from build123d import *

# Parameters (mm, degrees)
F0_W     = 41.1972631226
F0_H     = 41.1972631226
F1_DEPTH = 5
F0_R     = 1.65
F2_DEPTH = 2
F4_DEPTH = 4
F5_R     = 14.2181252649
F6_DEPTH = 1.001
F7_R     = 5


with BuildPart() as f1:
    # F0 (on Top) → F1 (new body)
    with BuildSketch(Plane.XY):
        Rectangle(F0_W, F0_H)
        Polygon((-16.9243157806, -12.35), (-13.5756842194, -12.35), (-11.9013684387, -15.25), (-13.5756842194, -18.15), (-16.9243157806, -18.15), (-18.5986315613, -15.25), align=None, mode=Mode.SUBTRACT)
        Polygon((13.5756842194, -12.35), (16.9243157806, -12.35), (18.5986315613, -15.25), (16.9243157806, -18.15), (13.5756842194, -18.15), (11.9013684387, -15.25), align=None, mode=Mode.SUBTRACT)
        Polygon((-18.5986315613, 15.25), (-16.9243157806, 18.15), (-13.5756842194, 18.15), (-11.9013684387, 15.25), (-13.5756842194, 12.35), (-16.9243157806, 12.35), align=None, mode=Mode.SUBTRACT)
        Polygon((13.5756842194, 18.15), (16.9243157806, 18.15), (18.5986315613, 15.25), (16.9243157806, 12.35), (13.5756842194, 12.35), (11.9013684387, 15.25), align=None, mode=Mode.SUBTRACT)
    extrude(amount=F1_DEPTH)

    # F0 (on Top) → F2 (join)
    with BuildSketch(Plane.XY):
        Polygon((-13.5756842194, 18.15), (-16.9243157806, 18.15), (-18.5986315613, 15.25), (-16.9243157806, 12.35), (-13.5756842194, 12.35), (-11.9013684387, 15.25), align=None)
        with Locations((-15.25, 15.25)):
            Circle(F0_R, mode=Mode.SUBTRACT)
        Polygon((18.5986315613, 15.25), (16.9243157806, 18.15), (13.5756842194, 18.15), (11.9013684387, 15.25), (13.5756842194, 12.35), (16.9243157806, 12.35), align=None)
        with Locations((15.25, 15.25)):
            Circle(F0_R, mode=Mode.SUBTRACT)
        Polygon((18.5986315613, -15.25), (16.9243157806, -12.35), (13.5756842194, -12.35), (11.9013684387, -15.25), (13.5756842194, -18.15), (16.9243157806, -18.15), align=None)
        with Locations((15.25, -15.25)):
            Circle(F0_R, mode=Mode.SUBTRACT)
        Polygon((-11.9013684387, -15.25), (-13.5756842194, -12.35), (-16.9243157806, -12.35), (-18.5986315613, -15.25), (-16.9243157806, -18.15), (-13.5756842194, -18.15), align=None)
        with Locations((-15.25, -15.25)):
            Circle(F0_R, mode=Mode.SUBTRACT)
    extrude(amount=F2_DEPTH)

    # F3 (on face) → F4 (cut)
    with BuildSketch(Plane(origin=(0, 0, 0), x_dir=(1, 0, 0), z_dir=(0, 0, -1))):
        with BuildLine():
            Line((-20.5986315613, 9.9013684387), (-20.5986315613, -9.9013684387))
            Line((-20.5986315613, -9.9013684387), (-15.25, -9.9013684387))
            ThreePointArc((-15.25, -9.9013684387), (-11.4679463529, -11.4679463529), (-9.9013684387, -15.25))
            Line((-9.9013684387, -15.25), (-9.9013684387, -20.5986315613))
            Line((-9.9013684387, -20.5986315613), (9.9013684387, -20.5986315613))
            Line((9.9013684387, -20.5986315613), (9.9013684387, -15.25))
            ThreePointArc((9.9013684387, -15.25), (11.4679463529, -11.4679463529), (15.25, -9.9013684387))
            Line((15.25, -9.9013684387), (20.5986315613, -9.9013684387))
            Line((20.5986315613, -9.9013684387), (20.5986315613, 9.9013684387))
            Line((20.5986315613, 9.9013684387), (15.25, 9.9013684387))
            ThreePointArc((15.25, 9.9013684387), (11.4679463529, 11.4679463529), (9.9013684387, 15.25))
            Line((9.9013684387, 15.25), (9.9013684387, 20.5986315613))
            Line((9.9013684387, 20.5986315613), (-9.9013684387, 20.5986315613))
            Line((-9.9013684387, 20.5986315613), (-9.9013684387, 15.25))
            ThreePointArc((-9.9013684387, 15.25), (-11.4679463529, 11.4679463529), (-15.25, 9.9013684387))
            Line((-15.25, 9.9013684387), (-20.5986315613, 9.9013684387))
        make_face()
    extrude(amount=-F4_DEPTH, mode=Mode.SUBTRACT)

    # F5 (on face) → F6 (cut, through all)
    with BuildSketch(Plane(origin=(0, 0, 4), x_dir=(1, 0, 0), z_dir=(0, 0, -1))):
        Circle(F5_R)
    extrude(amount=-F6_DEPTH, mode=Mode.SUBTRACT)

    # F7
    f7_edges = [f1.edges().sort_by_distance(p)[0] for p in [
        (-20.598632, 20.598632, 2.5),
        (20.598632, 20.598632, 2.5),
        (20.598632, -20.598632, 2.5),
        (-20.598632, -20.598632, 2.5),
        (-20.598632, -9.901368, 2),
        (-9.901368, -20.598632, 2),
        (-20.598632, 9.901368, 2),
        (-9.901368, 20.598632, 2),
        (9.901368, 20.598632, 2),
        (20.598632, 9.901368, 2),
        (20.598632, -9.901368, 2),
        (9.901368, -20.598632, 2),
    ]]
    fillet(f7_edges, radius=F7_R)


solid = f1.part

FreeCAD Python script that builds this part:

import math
import FreeCAD as App
import Part
import Sketcher

V = App.Vector
Q = App.Units.Quantity


def edges_at(feature, points):
    """Names of the edges that pass closest to the given points."""
    edges = feature.Shape.Edges
    near = lambda p: min(range(len(edges)), key=lambda i: edges[i].distToShape(Part.Vertex(*p))[0])
    return sorted({f"Edge{near(p) + 1}" for p in points})

doc = App.newDocument("Part")
params = doc.addObject("Spreadsheet::Sheet", "Params")
for row, (alias, value) in enumerate([
    ("pad1_length", "5 mm"),
    ("sketch2_diameter", "3.3 mm"),
    ("pad2_length", "2 mm"),
    ("pocket1_length", "4 mm"),
    ("fillet_radius", "5 mm"),
], start=1):
    params.set(f"A{row}", alias)
    params.set(f"B{row}", "=" + value)
    params.setAlias(f"B{row}", alias)

body = doc.addObject("PartDesign::Body", "Body")

# Sketch on XY plane
sketch1 = body.newObject("Sketcher::SketchObject", "Sketch")
sketch1.AttachmentSupport = (doc.getObject("XY_Plane"), [""])
sketch1.MapMode = "FlatFace"
sketch1.addGeometry(Part.LineSegment(V(-20.6, 20.6, 0), V(-20.6, -20.6, 0)), False)
sketch1.addGeometry(Part.LineSegment(V(-20.6, -20.6, 0), V(20.6, -20.6, 0)), False)
sketch1.addGeometry(Part.LineSegment(V(20.6, -20.6, 0), V(20.6, 20.6, 0)), False)
sketch1.addGeometry(Part.LineSegment(V(20.6, 20.6, 0), V(-20.6, 20.6, 0)), False)
sketch1.addGeometry(Part.LineSegment(V(-18.6, -15.2, 0), V(-16.9, -12.3, 0)), False)
sketch1.addGeometry(Part.LineSegment(V(-16.9, -12.3, 0), V(-13.6, -12.3, 0)), False)
sketch1.addGeometry(Part.LineSegment(V(-13.6, -12.3, 0), V(-11.9, -15.2, 0)), False)
sketch1.addGeometry(Part.LineSegment(V(-11.9, -15.2, 0), V(-13.6, -18.1, 0)), False)
sketch1.addGeometry(Part.LineSegment(V(-13.6, -18.1, 0), V(-16.9, -18.1, 0)), False)
sketch1.addGeometry(Part.LineSegment(V(-16.9, -18.1, 0), V(-18.6, -15.2, 0)), False)
sketch1.addGeometry(Part.LineSegment(V(11.9, -15.2, 0), V(13.6, -12.3, 0)), False)
sketch1.addGeometry(Part.LineSegment(V(13.6, -12.3, 0), V(16.9, -12.3, 0)), False)
sketch1.addGeometry(Part.LineSegment(V(16.9, -12.3, 0), V(18.6, -15.2, 0)), False)
sketch1.addGeometry(Part.LineSegment(V(18.6, -15.2, 0), V(16.9, -18.1, 0)), False)
sketch1.addGeometry(Part.LineSegment(V(16.9, -18.1, 0), V(13.6, -18.1, 0)), False)
sketch1.addGeometry(Part.LineSegment(V(13.6, -18.1, 0), V(11.9, -15.2, 0)), False)
sketch1.addGeometry(Part.LineSegment(V(-16.9, 12.3, 0), V(-18.6, 15.2, 0)), False)
sketch1.addGeometry(Part.LineSegment(V(-18.6, 15.2, 0), V(-16.9, 18.1, 0)), False)
sketch1.addGeometry(Part.LineSegment(V(-16.9, 18.1, 0), V(-13.6, 18.1, 0)), False)
sketch1.addGeometry(Part.LineSegment(V(-13.6, 18.1, 0), V(-11.9, 15.2, 0)), False)
sketch1.addGeometry(Part.LineSegment(V(-11.9, 15.2, 0), V(-13.6, 12.3, 0)), False)
sketch1.addGeometry(Part.LineSegment(V(-13.6, 12.3, 0), V(-16.9, 12.3, 0)), False)
sketch1.addGeometry(Part.LineSegment(V(11.9, 15.2, 0), V(13.6, 18.1, 0)), False)
sketch1.addGeometry(Part.LineSegment(V(13.6, 18.1, 0), V(16.9, 18.1, 0)), False)
sketch1.addGeometry(Part.LineSegment(V(16.9, 18.1, 0), V(18.6, 15.2, 0)), False)
sketch1.addGeometry(Part.LineSegment(V(18.6, 15.2, 0), V(16.9, 12.3, 0)), False)
sketch1.addGeometry(Part.LineSegment(V(16.9, 12.3, 0), V(13.6, 12.3, 0)), False)
sketch1.addGeometry(Part.LineSegment(V(13.6, 12.3, 0), V(11.9, 15.2, 0)), False)
sketch1.addConstraint(Sketcher.Constraint("Coincident", 0, 2, 1, 1))
sketch1.addConstraint(Sketcher.Constraint("Coincident", 1, 2, 2, 1))
sketch1.addConstraint(Sketcher.Constraint("Coincident", 2, 2, 3, 1))
sketch1.addConstraint(Sketcher.Constraint("Coincident", 3, 2, 0, 1))
sketch1.addConstraint(Sketcher.Constraint("Coincident", 4, 2, 5, 1))
sketch1.addConstraint(Sketcher.Constraint("Coincident", 5, 2, 6, 1))
sketch1.addConstraint(Sketcher.Constraint("Coincident", 6, 2, 7, 1))
sketch1.addConstraint(Sketcher.Constraint("Coincident", 7, 2, 8, 1))
sketch1.addConstraint(Sketcher.Constraint("Coincident", 8, 2, 9, 1))
sketch1.addConstraint(Sketcher.Constraint("Coincident", 9, 2, 4, 1))
sketch1.addConstraint(Sketcher.Constraint("Coincident", 10, 2, 11, 1))
sketch1.addConstraint(Sketcher.Constraint("Coincident", 11, 2, 12, 1))
sketch1.addConstraint(Sketcher.Constraint("Coincident", 12, 2, 13, 1))
sketch1.addConstraint(Sketcher.Constraint("Coincident", 13, 2, 14, 1))
sketch1.addConstraint(Sketcher.Constraint("Coincident", 14, 2, 15, 1))
sketch1.addConstraint(Sketcher.Constraint("Coincident", 15, 2, 10, 1))
sketch1.addConstraint(Sketcher.Constraint("Coincident", 16, 2, 17, 1))
sketch1.addConstraint(Sketcher.Constraint("Coincident", 17, 2, 18, 1))
sketch1.addConstraint(Sketcher.Constraint("Coincident", 18, 2, 19, 1))
sketch1.addConstraint(Sketcher.Constraint("Coincident", 19, 2, 20, 1))
sketch1.addConstraint(Sketcher.Constraint("Coincident", 20, 2, 21, 1))
sketch1.addConstraint(Sketcher.Constraint("Coincident", 21, 2, 16, 1))
sketch1.addConstraint(Sketcher.Constraint("Coincident", 22, 2, 23, 1))
sketch1.addConstraint(Sketcher.Constraint("Coincident", 23, 2, 24, 1))
sketch1.addConstraint(Sketcher.Constraint("Coincident", 24, 2, 25, 1))
sketch1.addConstraint(Sketcher.Constraint("Coincident", 25, 2, 26, 1))
sketch1.addConstraint(Sketcher.Constraint("Coincident", 26, 2, 27, 1))
sketch1.addConstraint(Sketcher.Constraint("Coincident", 27, 2, 22, 1))
sketch1.addConstraint(Sketcher.Constraint("Vertical", 0))
sketch1.addConstraint(Sketcher.Constraint("Horizontal", 1))
sketch1.addConstraint(Sketcher.Constraint("Vertical", 2))
sketch1.addConstraint(Sketcher.Constraint("Horizontal", 3))
sketch1.addConstraint(Sketcher.Constraint("Horizontal", 5))
sketch1.addConstraint(Sketcher.Constraint("Horizontal", 8))
sketch1.addConstraint(Sketcher.Constraint("Horizontal", 11))
sketch1.addConstraint(Sketcher.Constraint("Horizontal", 14))
sketch1.addConstraint(Sketcher.Constraint("Horizontal", 18))
sketch1.addConstraint(Sketcher.Constraint("Horizontal", 21))
sketch1.addConstraint(Sketcher.Constraint("Horizontal", 23))
sketch1.addConstraint(Sketcher.Constraint("Horizontal", 26))
sketch1.addConstraint(Sketcher.Constraint("Symmetric", 0, 2, 2, 2, -1, 1))
sketch1.addConstraint(Sketcher.Constraint("Symmetric", 12, 2, 16, 2, -1, 1))
sketch1.addConstraint(Sketcher.Constraint("Symmetric", 13, 2, 17, 2, -1, 1))
sketch1.addConstraint(Sketcher.Constraint("Symmetric", 15, 2, 19, 2, -1, 1))
sketch1.addConstraint(Sketcher.Constraint("Symmetric", 10, 2, 20, 2, -1, 1))
sketch1.addConstraint(Sketcher.Constraint("Symmetric", 7, 2, 22, 2, -1, 1))
sketch1.addConstraint(Sketcher.Constraint("Symmetric", 9, 2, 24, 2, -1, 1))
sketch1.addConstraint(Sketcher.Constraint("Symmetric", 4, 2, 25, 2, -1, 1))
sketch1.addConstraint(Sketcher.Constraint("Symmetric", 6, 2, 27, 2, -1, 1))
sketch1.addConstraint(Sketcher.Constraint("Symmetric", 5, 2, 10, 2, -2))
sketch1.addConstraint(Sketcher.Constraint("Symmetric", 9, 2, 12, 2, -2))
sketch1.addConstraint(Sketcher.Constraint("Symmetric", 8, 2, 13, 2, -2))
sketch1.addConstraint(Sketcher.Constraint("Symmetric", 6, 2, 15, 2, -2))
sketch1.addConstraint(Sketcher.Constraint("Parallel", 4, 7))
sketch1.addConstraint(Sketcher.Constraint("Parallel", 6, 9))
sketch1.addConstraint(Sketcher.Constraint("Parallel", 7, 10))
sketch1.addConstraint(Sketcher.Constraint("Parallel", 9, 12))
sketch1.addConstraint(Sketcher.Constraint("Parallel", 12, 15))
sketch1.addConstraint(Sketcher.Constraint("Parallel", 15, 16))
sketch1.addConstraint(Sketcher.Constraint("Parallel", 16, 19))
sketch1.addConstraint(Sketcher.Constraint("Parallel", 19, 24))
sketch1.addConstraint(Sketcher.Constraint("Parallel", 24, 27))
sketch1.addConstraint(Sketcher.Constraint("Horizontal", 6, 2, 9, 2))
sketch1.addConstraint(Sketcher.Constraint("Vertical", 5, 2, 7, 2))
sketch1.addConstraint(Sketcher.Constraint("Equal", 3, 0))
sketch1.addConstraint(Sketcher.Constraint("Angle", 4, Q("60 deg")))
sketch1.addConstraint(Sketcher.Constraint("DistanceX", 0, 2, 9, 2, Q("2 mm")))
sketch1.addConstraint(Sketcher.Constraint("DistanceY", 6, 2, 5, 2, Q("2.9 mm")))
sketch1.addConstraint(Sketcher.Constraint("DistanceX", 6, 2, 1, 2, Q("32.5 mm")))
sketch1.addConstraint(Sketcher.Constraint("DistanceY", 4, 2, 16, 2, Q("27.6 mm")))
sketch1.addConstraint(Sketcher.Constraint("DistanceX", 5, 1, 5, 2, Q("3.348632 mm")))
pad1 = body.newObject("PartDesign::Pad", "Pad")
pad1.Profile = sketch1
pad1.setExpression("Length", "Params.pad1_length")

# Sketch on XY plane
sketch2 = body.newObject("Sketcher::SketchObject", "Sketch001")
sketch2.AttachmentSupport = (doc.getObject("XY_Plane"), [""])
sketch2.MapMode = "FlatFace"
sketch2.addGeometry(Part.LineSegment(V(-13.6, 18.1, 0), V(-16.9, 18.1, 0)), False)
sketch2.addGeometry(Part.LineSegment(V(-16.9, 18.1, 0), V(-18.6, 15.2, 0)), False)
sketch2.addGeometry(Part.LineSegment(V(-18.6, 15.2, 0), V(-16.9, 12.3, 0)), False)
sketch2.addGeometry(Part.LineSegment(V(-16.9, 12.3, 0), V(-13.6, 12.3, 0)), False)
sketch2.addGeometry(Part.LineSegment(V(-13.6, 12.3, 0), V(-11.9, 15.2, 0)), False)
sketch2.addGeometry(Part.LineSegment(V(-11.9, 15.2, 0), V(-13.6, 18.1, 0)), False)
sketch2.addGeometry(Part.Circle(V(-15.2, 15.2, 0), V(0, 0, 1), 1.6), False)
sketch2.addGeometry(Part.LineSegment(V(18.6, 15.2, 0), V(16.9, 18.1, 0)), False)
sketch2.addGeometry(Part.LineSegment(V(16.9, 18.1, 0), V(13.6, 18.1, 0)), False)
sketch2.addGeometry(Part.LineSegment(V(13.6, 18.1, 0), V(11.9, 15.2, 0)), False)
sketch2.addGeometry(Part.LineSegment(V(11.9, 15.2, 0), V(13.6, 12.3, 0)), False)
sketch2.addGeometry(Part.LineSegment(V(13.6, 12.3, 0), V(16.9, 12.3, 0)), False)
sketch2.addGeometry(Part.LineSegment(V(16.9, 12.3, 0), V(18.6, 15.2, 0)), False)
sketch2.addGeometry(Part.Circle(V(15.2, 15.2, 0), V(0, 0, 1), 1.6), False)
sketch2.addGeometry(Part.LineSegment(V(18.6, -15.2, 0), V(16.9, -12.3, 0)), False)
sketch2.addGeometry(Part.LineSegment(V(16.9, -12.3, 0), V(13.6, -12.3, 0)), False)
sketch2.addGeometry(Part.LineSegment(V(13.6, -12.3, 0), V(11.9, -15.2, 0)), False)
sketch2.addGeometry(Part.LineSegment(V(11.9, -15.2, 0), V(13.6, -18.1, 0)), False)
sketch2.addGeometry(Part.LineSegment(V(13.6, -18.1, 0), V(16.9, -18.1, 0)), False)
sketch2.addGeometry(Part.LineSegment(V(16.9, -18.1, 0), V(18.6, -15.2, 0)), False)
sketch2.addGeometry(Part.Circle(V(15.2, -15.2, 0), V(0, 0, 1), 1.6), False)
sketch2.addGeometry(Part.LineSegment(V(-11.9, -15.2, 0), V(-13.6, -12.3, 0)), False)
sketch2.addGeometry(Part.LineSegment(V(-13.6, -12.3, 0), V(-16.9, -12.3, 0)), False)
sketch2.addGeometry(Part.LineSegment(V(-16.9, -12.3, 0), V(-18.6, -15.2, 0)), False)
sketch2.addGeometry(Part.LineSegment(V(-18.6, -15.2, 0), V(-16.9, -18.1, 0)), False)
sketch2.addGeometry(Part.LineSegment(V(-16.9, -18.1, 0), V(-13.6, -18.1, 0)), False)
sketch2.addGeometry(Part.LineSegment(V(-13.6, -18.1, 0), V(-11.9, -15.2, 0)), False)
sketch2.addGeometry(Part.Circle(V(-15.2, -15.2, 0), V(0, 0, 1), 1.6), False)
sketch2.addConstraint(Sketcher.Constraint("Coincident", 0, 2, 1, 1))
sketch2.addConstraint(Sketcher.Constraint("Coincident", 1, 2, 2, 1))
sketch2.addConstraint(Sketcher.Constraint("Coincident", 2, 2, 3, 1))
sketch2.addConstraint(Sketcher.Constraint("Coincident", 3, 2, 4, 1))
sketch2.addConstraint(Sketcher.Constraint("Coincident", 4, 2, 5, 1))
sketch2.addConstraint(Sketcher.Constraint("Coincident", 5, 2, 0, 1))
sketch2.addConstraint(Sketcher.Constraint("Coincident", 7, 2, 8, 1))
sketch2.addConstraint(Sketcher.Constraint("Coincident", 8, 2, 9, 1))
sketch2.addConstraint(Sketcher.Constraint("Coincident", 9, 2, 10, 1))
sketch2.addConstraint(Sketcher.Constraint("Coincident", 10, 2, 11, 1))
sketch2.addConstraint(Sketcher.Constraint("Coincident", 11, 2, 12, 1))
sketch2.addConstraint(Sketcher.Constraint("Coincident", 12, 2, 7, 1))
sketch2.addConstraint(Sketcher.Constraint("Coincident", 14, 2, 15, 1))
sketch2.addConstraint(Sketcher.Constraint("Coincident", 15, 2, 16, 1))
sketch2.addConstraint(Sketcher.Constraint("Coincident", 16, 2, 17, 1))
sketch2.addConstraint(Sketcher.Constraint("Coincident", 17, 2, 18, 1))
sketch2.addConstraint(Sketcher.Constraint("Coincident", 18, 2, 19, 1))
sketch2.addConstraint(Sketcher.Constraint("Coincident", 19, 2, 14, 1))
sketch2.addConstraint(Sketcher.Constraint("Coincident", 21, 2, 22, 1))
sketch2.addConstraint(Sketcher.Constraint("Coincident", 22, 2, 23, 1))
sketch2.addConstraint(Sketcher.Constraint("Coincident", 23, 2, 24, 1))
sketch2.addConstraint(Sketcher.Constraint("Coincident", 24, 2, 25, 1))
sketch2.addConstraint(Sketcher.Constraint("Coincident", 25, 2, 26, 1))
sketch2.addConstraint(Sketcher.Constraint("Coincident", 26, 2, 21, 1))
sketch2.addConstraint(Sketcher.Constraint("Horizontal", 0))
sketch2.addConstraint(Sketcher.Constraint("Horizontal", 3))
sketch2.addConstraint(Sketcher.Constraint("Horizontal", 8))
sketch2.addConstraint(Sketcher.Constraint("Horizontal", 11))
sketch2.addConstraint(Sketcher.Constraint("Horizontal", 15))
sketch2.addConstraint(Sketcher.Constraint("Horizontal", 18))
sketch2.addConstraint(Sketcher.Constraint("Horizontal", 22))
sketch2.addConstraint(Sketcher.Constraint("Horizontal", 25))
sketch2.addConstraint(Sketcher.Constraint("Equal", 6, 13))
sketch2.addConstraint(Sketcher.Constraint("Equal", 13, 20))
sketch2.addConstraint(Sketcher.Constraint("Equal", 20, 27))
sketch2.addConstraint(Sketcher.Constraint("Symmetric", 6, 3, 20, 3, -1, 1))
sketch2.addConstraint(Sketcher.Constraint("Symmetric", 13, 3, 27, 3, -1, 1))
sketch2.addConstraint(Sketcher.Constraint("Symmetric", 2, 2, 14, 2, -1, 1))
sketch2.addConstraint(Sketcher.Constraint("Symmetric", 4, 2, 16, 2, -1, 1))
sketch2.addConstraint(Sketcher.Constraint("Symmetric", 5, 2, 17, 2, -1, 1))
sketch2.addConstraint(Sketcher.Constraint("Symmetric", 1, 2, 19, 2, -1, 1))
sketch2.addConstraint(Sketcher.Constraint("Symmetric", 10, 2, 21, 2, -1, 1))
sketch2.addConstraint(Sketcher.Constraint("Symmetric", 12, 2, 23, 2, -1, 1))
sketch2.addConstraint(Sketcher.Constraint("Symmetric", 7, 2, 24, 2, -1, 1))
sketch2.addConstraint(Sketcher.Constraint("Symmetric", 9, 2, 26, 2, -1, 1))
sketch2.addConstraint(Sketcher.Constraint("Symmetric", 6, 3, 13, 3, -2))
sketch2.addConstraint(Sketcher.Constraint("Symmetric", 0, 2, 7, 2, -2))
sketch2.addConstraint(Sketcher.Constraint("Symmetric", 4, 2, 9, 2, -2))
sketch2.addConstraint(Sketcher.Constraint("Symmetric", 3, 2, 10, 2, -2))
sketch2.addConstraint(Sketcher.Constraint("Symmetric", 1, 2, 12, 2, -2))
sketch2.addConstraint(Sketcher.Constraint("Parallel", 1, 4))
sketch2.addConstraint(Sketcher.Constraint("Parallel", 2, 5))
sketch2.addConstraint(Sketcher.Constraint("Parallel", 5, 7))
sketch2.addConstraint(Sketcher.Constraint("Parallel", 4, 9))
sketch2.addConstraint(Sketcher.Constraint("Parallel", 9, 12))
sketch2.addConstraint(Sketcher.Constraint("Parallel", 12, 16))
sketch2.addConstraint(Sketcher.Constraint("Parallel", 16, 19))
sketch2.addConstraint(Sketcher.Constraint("Parallel", 19, 23))
sketch2.addConstraint(Sketcher.Constraint("Parallel", 23, 26))
sketch2.addConstraint(Sketcher.Constraint("Horizontal", 13, 3, 1, 2))
sketch2.addConstraint(Sketcher.Constraint("Horizontal", 1, 2, 4, 2))
sketch2.addConstraint(Sketcher.Constraint("Vertical", 0, 2, 2, 2))
sketch2.addConstraint(Sketcher.Constraint("Diameter", 6, Q("3.3 mm")))
sketch2.addConstraint(Sketcher.Constraint("Angle", 1, Q("-120 deg")))
sketch2.addConstraint(Sketcher.Constraint("DistanceX", 6, 3, 13, 3, Q("30.5 mm")))
sketch2.addConstraint(Sketcher.Constraint("DistanceY", 20, 3, 13, 3, Q("30.5 mm")))
sketch2.addConstraint(Sketcher.Constraint("DistanceY", 6, 3, 0, 2, Q("2.9 mm")))
sketch2.addConstraint(Sketcher.Constraint("DistanceX", 5, 2, 7, 2, Q("30.5 mm")))
sketch2.addConstraint(Sketcher.Constraint("DistanceX", 0, 2, 0, 1, Q("3.348632 mm")))
sketch2.setExpression("Constraints[62]", "Params.sketch2_diameter")
pad2 = body.newObject("PartDesign::Pad", "Pad001")
pad2.Profile = sketch2
pad2.setExpression("Length", "Params.pad2_length")

# Sketch on XY plane
sketch3 = body.newObject("Sketcher::SketchObject", "Sketch002")
sketch3.AttachmentSupport = (doc.getObject("XY_Plane"), [""])
sketch3.MapMode = "FlatFace"
sketch3.addGeometry(Part.LineSegment(V(-21, -10, 0), V(-21, 10, 0)), False)
sketch3.addGeometry(Part.LineSegment(V(-21, 10, 0), V(-15, 10, 0)), False)
sketch3.addGeometry(Part.ArcOfCircle(Part.Circle(V(-15, 15, 0), V(0, 0, 1), 5), math.radians(-90), math.radians(0)), False)
sketch3.addGeometry(Part.LineSegment(V(-10, 15, 0), V(-10, 21, 0)), False)
sketch3.addGeometry(Part.LineSegment(V(-10, 21, 0), V(10, 21, 0)), False)
sketch3.addGeometry(Part.LineSegment(V(10, 21, 0), V(10, 15, 0)), False)
sketch3.addGeometry(Part.ArcOfCircle(Part.Circle(V(15, 15, 0), V(0, 0, 1), 5), math.radians(180), math.radians(270)), False)
sketch3.addGeometry(Part.LineSegment(V(15, 10, 0), V(21, 10, 0)), False)
sketch3.addGeometry(Part.LineSegment(V(21, 10, 0), V(21, -10, 0)), False)
sketch3.addGeometry(Part.LineSegment(V(21, -10, 0), V(15, -10, 0)), False)
sketch3.addGeometry(Part.ArcOfCircle(Part.Circle(V(15, -15, 0), V(0, 0, 1), 5), math.radians(90), math.radians(180)), False)
sketch3.addGeometry(Part.LineSegment(V(10, -15, 0), V(10, -21, 0)), False)
sketch3.addGeometry(Part.LineSegment(V(10, -21, 0), V(-10, -21, 0)), False)
sketch3.addGeometry(Part.LineSegment(V(-10, -21, 0), V(-10, -15, 0)), False)
sketch3.addGeometry(Part.ArcOfCircle(Part.Circle(V(-15, -15, 0), V(0, 0, 1), 5), math.radians(0), math.radians(90)), False)
sketch3.addGeometry(Part.LineSegment(V(-15, -10, 0), V(-21, -10, 0)), False)
sketch3.addConstraint(Sketcher.Constraint("Coincident", 0, 2, 1, 1))
sketch3.addConstraint(Sketcher.Constraint("Tangent", 1, 2, 2, 1))
sketch3.addConstraint(Sketcher.Constraint("Tangent", 2, 2, 3, 1))
sketch3.addConstraint(Sketcher.Constraint("Coincident", 3, 2, 4, 1))
sketch3.addConstraint(Sketcher.Constraint("Coincident", 4, 2, 5, 1))
sketch3.addConstraint(Sketcher.Constraint("Tangent", 5, 2, 6, 1))
sketch3.addConstraint(Sketcher.Constraint("Tangent", 6, 2, 7, 1))
sketch3.addConstraint(Sketcher.Constraint("Coincident", 7, 2, 8, 1))
sketch3.addConstraint(Sketcher.Constraint("Coincident", 8, 2, 9, 1))
sketch3.addConstraint(Sketcher.Constraint("Tangent", 9, 2, 10, 1))
sketch3.addConstraint(Sketcher.Constraint("Tangent", 10, 2, 11, 1))
sketch3.addConstraint(Sketcher.Constraint("Coincident", 11, 2, 12, 1))
sketch3.addConstraint(Sketcher.Constraint("Coincident", 12, 2, 13, 1))
sketch3.addConstraint(Sketcher.Constraint("Tangent", 13, 2, 14, 1))
sketch3.addConstraint(Sketcher.Constraint("Tangent", 14, 2, 15, 1))
sketch3.addConstraint(Sketcher.Constraint("Coincident", 15, 2, 0, 1))
sketch3.addConstraint(Sketcher.Constraint("Vertical", 0))
sketch3.addConstraint(Sketcher.Constraint("Horizontal", 1))
sketch3.addConstraint(Sketcher.Constraint("Vertical", 3))
sketch3.addConstraint(Sketcher.Constraint("Horizontal", 4))
sketch3.addConstraint(Sketcher.Constraint("Vertical", 5))
sketch3.addConstraint(Sketcher.Constraint("Horizontal", 7))
sketch3.addConstraint(Sketcher.Constraint("Vertical", 8))
sketch3.addConstraint(Sketcher.Constraint("Horizontal", 9))
sketch3.addConstraint(Sketcher.Constraint("Vertical", 11))
sketch3.addConstraint(Sketcher.Constraint("Horizontal", 12))
sketch3.addConstraint(Sketcher.Constraint("Vertical", 13))
sketch3.addConstraint(Sketcher.Constraint("Horizontal", 15))
sketch3.addConstraint(Sketcher.Constraint("Equal", 2, 6))
sketch3.addConstraint(Sketcher.Constraint("Equal", 6, 10))
sketch3.addConstraint(Sketcher.Constraint("Equal", 10, 14))
sketch3.addConstraint(Sketcher.Constraint("Symmetric", 2, 3, 10, 3, -1, 1))
sketch3.addConstraint(Sketcher.Constraint("Symmetric", 6, 3, 14, 3, -1, 1))
sketch3.addConstraint(Sketcher.Constraint("Symmetric", 2, 3, 6, 3, -2))
sketch3.addConstraint(Sketcher.Constraint("Equal", 1, 7))
sketch3.addConstraint(Sketcher.Constraint("Equal", 12, 0))
sketch3.addConstraint(Sketcher.Constraint("Equal", 15, 3))
sketch3.addConstraint(Sketcher.Constraint("Equal", 5, 11))
sketch3.addConstraint(Sketcher.Constraint("DistanceX", 2, 3, 6, 3, Q("30.5 mm")))
sketch3.addConstraint(Sketcher.Constraint("Radius", 2, Q("5.348632 mm")))
sketch3.addConstraint(Sketcher.Constraint("DistanceX", 1, 1, 1, 2, Q("5.348632 mm")))
pocket1 = body.newObject("PartDesign::Pocket", "Pocket")
pocket1.Profile = sketch3
pocket1.setExpression("Length", "Params.pocket1_length")
pocket1.Reversed = True

# Sketch on XY plane
sketch4 = body.newObject("Sketcher::SketchObject", "Sketch003")
sketch4.AttachmentSupport = (doc.getObject("XY_Plane"), [""])
sketch4.MapMode = "FlatFace"
sketch4.AttachmentOffset = App.Placement(V(0, 0, 4), App.Rotation())
sketch4.addGeometry(Part.Circle(V(0, 0, 0), V(0, 0, 1), 14), False)
sketch4.addConstraint(Sketcher.Constraint("Coincident", 0, 3, -1, 1))
sketch4.addConstraint(Sketcher.Constraint("Diameter", 0, Q("28.436251 mm")))
pocket2 = body.newObject("PartDesign::Pocket", "Pocket001")
pocket2.Profile = sketch4
pocket2.Type = "ThroughAll"
pocket2.Reversed = True
doc.recompute()

fillet = body.newObject("PartDesign::Fillet", "Fillet")
fillet.Base = (pocket2, edges_at(pocket2, [
    (-20.599, 20.599, 2.5),
    (20.599, 20.599, 2.5),
    (20.599, -20.599, 2.5),
    (-20.599, -20.599, 2.5),
    (-20.599, -9.901, 2),
    (-9.901, -20.599, 2),
    (-20.599, 9.901, 2),
    (-9.901, 20.599, 2),
    (9.901, 20.599, 2),
    (20.599, 9.901, 2),
    (20.599, -9.901, 2),
    (9.901, -20.599, 2),
]))
fillet.setExpression("Radius", "Params.fillet_radius")

doc.recompute()
